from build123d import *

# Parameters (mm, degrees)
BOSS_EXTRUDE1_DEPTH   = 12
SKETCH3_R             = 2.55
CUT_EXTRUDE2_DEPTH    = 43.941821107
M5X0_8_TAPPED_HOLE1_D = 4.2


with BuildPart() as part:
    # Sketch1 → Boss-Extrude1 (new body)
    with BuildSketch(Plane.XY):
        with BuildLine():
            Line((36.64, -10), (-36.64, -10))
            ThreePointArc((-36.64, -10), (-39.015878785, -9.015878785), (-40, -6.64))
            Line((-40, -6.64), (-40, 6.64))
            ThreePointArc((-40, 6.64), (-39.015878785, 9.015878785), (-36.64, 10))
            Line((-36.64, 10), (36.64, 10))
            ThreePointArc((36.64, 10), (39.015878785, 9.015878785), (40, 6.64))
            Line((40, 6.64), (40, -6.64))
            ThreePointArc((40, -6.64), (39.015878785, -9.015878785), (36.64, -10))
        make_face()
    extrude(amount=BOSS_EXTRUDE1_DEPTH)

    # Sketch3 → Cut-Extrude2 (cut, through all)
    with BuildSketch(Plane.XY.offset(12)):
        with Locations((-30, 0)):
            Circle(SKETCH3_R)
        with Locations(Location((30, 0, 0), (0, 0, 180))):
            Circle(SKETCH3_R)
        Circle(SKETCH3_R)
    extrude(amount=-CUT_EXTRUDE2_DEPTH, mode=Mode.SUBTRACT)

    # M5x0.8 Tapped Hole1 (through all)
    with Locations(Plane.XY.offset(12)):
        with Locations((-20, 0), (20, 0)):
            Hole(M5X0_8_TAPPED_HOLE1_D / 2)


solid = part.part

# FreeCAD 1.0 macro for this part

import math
import FreeCAD as App
import Part
import Sketcher
from FreeCAD import Vector
Q = App.Units.Quantity

doc = App.newDocument("Part")
body = doc.addObject("PartDesign::Body", "Body")

sketch1 = body.newObject("Sketcher::SketchObject", "Sketch")
sketch1.AttachmentSupport = (doc.getObject("XY_Plane"), [""])
sketch1.MapMode = "FlatFace"
sketch1.addGeometry([
    Part.LineSegment(Vector(-36.6, -10, 0), Vector(36.6, -10, 0)),
    Part.ArcOfCircle(Part.Circle(Vector(36.6, -6.6, 0), Vector(0, 0, 1), 3.4), math.radians(-90), math.radians(0)),
    Part.LineSegment(Vector(40, -6.6, 0), Vector(40, 6.6, 0)),
    Part.ArcOfCircle(Part.Circle(Vector(36.6, 6.6, 0), Vector(0, 0, 1), 3.4), math.radians(0), math.radians(90)),
    Part.LineSegment(Vector(36.6, 10, 0), Vector(-36.6, 10, 0)),
    Part.ArcOfCircle(Part.Circle(Vector(-36.6, 6.6, 0), Vector(0, 0, 1), 3.4), math.radians(90), math.radians(180)),
    Part.LineSegment(Vector(-40, 6.6, 0), Vector(-40, -6.6, 0)),
    Part.ArcOfCircle(Part.Circle(Vector(-36.6, -6.6, 0), Vector(0, 0, 1), 3.4), math.radians(180), math.radians(270)),
], False)
sketch1.addConstraint([
    Sketcher.Constraint("Tangent", 0, 2, 1, 1),
    Sketcher.Constraint("Tangent", 1, 2, 2, 1),
    Sketcher.Constraint("Tangent", 2, 2, 3, 1),
    Sketcher.Constraint("Tangent", 3, 2, 4, 1),
    Sketcher.Constraint("Tangent", 4, 2, 5, 1),
    Sketcher.Constraint("Tangent", 5, 2, 6, 1),
    Sketcher.Constraint("Tangent", 6, 2, 7, 1),
    Sketcher.Constraint("Tangent", 7, 2, 0, 1),
    Sketcher.Constraint("Horizontal", 0),
    Sketcher.Constraint("Vertical", 2),
    Sketcher.Constraint("Horizontal", 4),
    Sketcher.Constraint("Vertical", 6),
    Sketcher.Constraint("Equal", 1, 3),
    Sketcher.Constraint("Equal", 3, 5),
    Sketcher.Constraint("Equal", 5, 7),
    Sketcher.Constraint("Symmetric", 1, 3, 5, 3, -1, 1),
    Sketcher.Constraint("Radius", 1, Q("3.36 mm")),
    Sketcher.Constraint("DistanceY", 0, 2, -1, 1, Q("10 mm")),
    Sketcher.Constraint("DistanceX", -1, 1, 1, 2, Q("40 mm")),
])
pad1 = body.newObject("PartDesign::Pad", "Pad")
pad1.Profile = sketch1
pad1.Length = 12

sketch2 = body.newObject("Sketcher::SketchObject", "Sketch001")
sketch2.AttachmentSupport = (doc.getObject("XY_Plane"), [""])
sketch2.MapMode = "FlatFace"
sketch2.AttachmentOffset = App.Placement(Vector(0, 0, 12), App.Rotation())
sketch2.addGeometry([
    Part.Circle(Vector(-30, 0, 0), Vector(0, 0, 1), 2.5),
    Part.Circle(Vector(30, 0, 0), Vector(0, 0, 1), 2.5),
    Part.Circle(Vector(0, 0, 0), Vector(0, 0, 1), 2.5),
], False)
sketch2.addConstraint([
    Sketcher.Constraint("Coincident", 2, 3, -1, 1),
    Sketcher.Constraint("Equal", 0, 1),
    Sketcher.Constraint("Equal", 1, 2),
    Sketcher.Constraint("Symmetric", 0, 3, 1, 3, -1, 1),
    Sketcher.Constraint("PointOnObject", 0, 3, -1),
    Sketcher.Constraint("Diameter", 0, Q("5.1 mm")),
    Sketcher.Constraint("DistanceX", 0, 3, -1, 1, Q("30 mm")),
])
pocket1 = body.newObject("PartDesign::Pocket", "Pocket")
pocket1.Profile = sketch2
pocket1.Type = "ThroughAll"

sketch3 = body.newObject("Sketcher::SketchObject", "Sketch002")
sketch3.AttachmentSupport = (doc.getObject("XY_Plane"), [""])
sketch3.MapMode = "FlatFace"
sketch3.AttachmentOffset = App.Placement(Vector(0, 0, 12), App.Rotation())
sketch3.addGeometry([
    Part.Circle(Vector(-20, 0, 0), Vector(0, 0, 1), 2.1),
    Part.Circle(Vector(20, 0, 0), Vector(0, 0, 1), 2.1),
], False)
sketch3.addConstraint([
    Sketcher.Constraint("Equal", 0, 1),
    Sketcher.Constraint("Symmetric", 0, 3, 1, 3, -1, 1),
    Sketcher.Constraint("PointOnObject", 0, 3, -1),
    Sketcher.Constraint("Diameter", 0, Q("4.2 mm")),
    Sketcher.Constraint("DistanceX", 0, 3, -1, 1, Q("20 mm")),
])
doc.recompute()
hole = body.newObject("PartDesign::Hole", "Hole")
hole.Profile = sketch3
hole.ThreadType = "None"
hole.Diameter = 4.2
hole.DepthType = "ThroughAll"

doc.recompute()
